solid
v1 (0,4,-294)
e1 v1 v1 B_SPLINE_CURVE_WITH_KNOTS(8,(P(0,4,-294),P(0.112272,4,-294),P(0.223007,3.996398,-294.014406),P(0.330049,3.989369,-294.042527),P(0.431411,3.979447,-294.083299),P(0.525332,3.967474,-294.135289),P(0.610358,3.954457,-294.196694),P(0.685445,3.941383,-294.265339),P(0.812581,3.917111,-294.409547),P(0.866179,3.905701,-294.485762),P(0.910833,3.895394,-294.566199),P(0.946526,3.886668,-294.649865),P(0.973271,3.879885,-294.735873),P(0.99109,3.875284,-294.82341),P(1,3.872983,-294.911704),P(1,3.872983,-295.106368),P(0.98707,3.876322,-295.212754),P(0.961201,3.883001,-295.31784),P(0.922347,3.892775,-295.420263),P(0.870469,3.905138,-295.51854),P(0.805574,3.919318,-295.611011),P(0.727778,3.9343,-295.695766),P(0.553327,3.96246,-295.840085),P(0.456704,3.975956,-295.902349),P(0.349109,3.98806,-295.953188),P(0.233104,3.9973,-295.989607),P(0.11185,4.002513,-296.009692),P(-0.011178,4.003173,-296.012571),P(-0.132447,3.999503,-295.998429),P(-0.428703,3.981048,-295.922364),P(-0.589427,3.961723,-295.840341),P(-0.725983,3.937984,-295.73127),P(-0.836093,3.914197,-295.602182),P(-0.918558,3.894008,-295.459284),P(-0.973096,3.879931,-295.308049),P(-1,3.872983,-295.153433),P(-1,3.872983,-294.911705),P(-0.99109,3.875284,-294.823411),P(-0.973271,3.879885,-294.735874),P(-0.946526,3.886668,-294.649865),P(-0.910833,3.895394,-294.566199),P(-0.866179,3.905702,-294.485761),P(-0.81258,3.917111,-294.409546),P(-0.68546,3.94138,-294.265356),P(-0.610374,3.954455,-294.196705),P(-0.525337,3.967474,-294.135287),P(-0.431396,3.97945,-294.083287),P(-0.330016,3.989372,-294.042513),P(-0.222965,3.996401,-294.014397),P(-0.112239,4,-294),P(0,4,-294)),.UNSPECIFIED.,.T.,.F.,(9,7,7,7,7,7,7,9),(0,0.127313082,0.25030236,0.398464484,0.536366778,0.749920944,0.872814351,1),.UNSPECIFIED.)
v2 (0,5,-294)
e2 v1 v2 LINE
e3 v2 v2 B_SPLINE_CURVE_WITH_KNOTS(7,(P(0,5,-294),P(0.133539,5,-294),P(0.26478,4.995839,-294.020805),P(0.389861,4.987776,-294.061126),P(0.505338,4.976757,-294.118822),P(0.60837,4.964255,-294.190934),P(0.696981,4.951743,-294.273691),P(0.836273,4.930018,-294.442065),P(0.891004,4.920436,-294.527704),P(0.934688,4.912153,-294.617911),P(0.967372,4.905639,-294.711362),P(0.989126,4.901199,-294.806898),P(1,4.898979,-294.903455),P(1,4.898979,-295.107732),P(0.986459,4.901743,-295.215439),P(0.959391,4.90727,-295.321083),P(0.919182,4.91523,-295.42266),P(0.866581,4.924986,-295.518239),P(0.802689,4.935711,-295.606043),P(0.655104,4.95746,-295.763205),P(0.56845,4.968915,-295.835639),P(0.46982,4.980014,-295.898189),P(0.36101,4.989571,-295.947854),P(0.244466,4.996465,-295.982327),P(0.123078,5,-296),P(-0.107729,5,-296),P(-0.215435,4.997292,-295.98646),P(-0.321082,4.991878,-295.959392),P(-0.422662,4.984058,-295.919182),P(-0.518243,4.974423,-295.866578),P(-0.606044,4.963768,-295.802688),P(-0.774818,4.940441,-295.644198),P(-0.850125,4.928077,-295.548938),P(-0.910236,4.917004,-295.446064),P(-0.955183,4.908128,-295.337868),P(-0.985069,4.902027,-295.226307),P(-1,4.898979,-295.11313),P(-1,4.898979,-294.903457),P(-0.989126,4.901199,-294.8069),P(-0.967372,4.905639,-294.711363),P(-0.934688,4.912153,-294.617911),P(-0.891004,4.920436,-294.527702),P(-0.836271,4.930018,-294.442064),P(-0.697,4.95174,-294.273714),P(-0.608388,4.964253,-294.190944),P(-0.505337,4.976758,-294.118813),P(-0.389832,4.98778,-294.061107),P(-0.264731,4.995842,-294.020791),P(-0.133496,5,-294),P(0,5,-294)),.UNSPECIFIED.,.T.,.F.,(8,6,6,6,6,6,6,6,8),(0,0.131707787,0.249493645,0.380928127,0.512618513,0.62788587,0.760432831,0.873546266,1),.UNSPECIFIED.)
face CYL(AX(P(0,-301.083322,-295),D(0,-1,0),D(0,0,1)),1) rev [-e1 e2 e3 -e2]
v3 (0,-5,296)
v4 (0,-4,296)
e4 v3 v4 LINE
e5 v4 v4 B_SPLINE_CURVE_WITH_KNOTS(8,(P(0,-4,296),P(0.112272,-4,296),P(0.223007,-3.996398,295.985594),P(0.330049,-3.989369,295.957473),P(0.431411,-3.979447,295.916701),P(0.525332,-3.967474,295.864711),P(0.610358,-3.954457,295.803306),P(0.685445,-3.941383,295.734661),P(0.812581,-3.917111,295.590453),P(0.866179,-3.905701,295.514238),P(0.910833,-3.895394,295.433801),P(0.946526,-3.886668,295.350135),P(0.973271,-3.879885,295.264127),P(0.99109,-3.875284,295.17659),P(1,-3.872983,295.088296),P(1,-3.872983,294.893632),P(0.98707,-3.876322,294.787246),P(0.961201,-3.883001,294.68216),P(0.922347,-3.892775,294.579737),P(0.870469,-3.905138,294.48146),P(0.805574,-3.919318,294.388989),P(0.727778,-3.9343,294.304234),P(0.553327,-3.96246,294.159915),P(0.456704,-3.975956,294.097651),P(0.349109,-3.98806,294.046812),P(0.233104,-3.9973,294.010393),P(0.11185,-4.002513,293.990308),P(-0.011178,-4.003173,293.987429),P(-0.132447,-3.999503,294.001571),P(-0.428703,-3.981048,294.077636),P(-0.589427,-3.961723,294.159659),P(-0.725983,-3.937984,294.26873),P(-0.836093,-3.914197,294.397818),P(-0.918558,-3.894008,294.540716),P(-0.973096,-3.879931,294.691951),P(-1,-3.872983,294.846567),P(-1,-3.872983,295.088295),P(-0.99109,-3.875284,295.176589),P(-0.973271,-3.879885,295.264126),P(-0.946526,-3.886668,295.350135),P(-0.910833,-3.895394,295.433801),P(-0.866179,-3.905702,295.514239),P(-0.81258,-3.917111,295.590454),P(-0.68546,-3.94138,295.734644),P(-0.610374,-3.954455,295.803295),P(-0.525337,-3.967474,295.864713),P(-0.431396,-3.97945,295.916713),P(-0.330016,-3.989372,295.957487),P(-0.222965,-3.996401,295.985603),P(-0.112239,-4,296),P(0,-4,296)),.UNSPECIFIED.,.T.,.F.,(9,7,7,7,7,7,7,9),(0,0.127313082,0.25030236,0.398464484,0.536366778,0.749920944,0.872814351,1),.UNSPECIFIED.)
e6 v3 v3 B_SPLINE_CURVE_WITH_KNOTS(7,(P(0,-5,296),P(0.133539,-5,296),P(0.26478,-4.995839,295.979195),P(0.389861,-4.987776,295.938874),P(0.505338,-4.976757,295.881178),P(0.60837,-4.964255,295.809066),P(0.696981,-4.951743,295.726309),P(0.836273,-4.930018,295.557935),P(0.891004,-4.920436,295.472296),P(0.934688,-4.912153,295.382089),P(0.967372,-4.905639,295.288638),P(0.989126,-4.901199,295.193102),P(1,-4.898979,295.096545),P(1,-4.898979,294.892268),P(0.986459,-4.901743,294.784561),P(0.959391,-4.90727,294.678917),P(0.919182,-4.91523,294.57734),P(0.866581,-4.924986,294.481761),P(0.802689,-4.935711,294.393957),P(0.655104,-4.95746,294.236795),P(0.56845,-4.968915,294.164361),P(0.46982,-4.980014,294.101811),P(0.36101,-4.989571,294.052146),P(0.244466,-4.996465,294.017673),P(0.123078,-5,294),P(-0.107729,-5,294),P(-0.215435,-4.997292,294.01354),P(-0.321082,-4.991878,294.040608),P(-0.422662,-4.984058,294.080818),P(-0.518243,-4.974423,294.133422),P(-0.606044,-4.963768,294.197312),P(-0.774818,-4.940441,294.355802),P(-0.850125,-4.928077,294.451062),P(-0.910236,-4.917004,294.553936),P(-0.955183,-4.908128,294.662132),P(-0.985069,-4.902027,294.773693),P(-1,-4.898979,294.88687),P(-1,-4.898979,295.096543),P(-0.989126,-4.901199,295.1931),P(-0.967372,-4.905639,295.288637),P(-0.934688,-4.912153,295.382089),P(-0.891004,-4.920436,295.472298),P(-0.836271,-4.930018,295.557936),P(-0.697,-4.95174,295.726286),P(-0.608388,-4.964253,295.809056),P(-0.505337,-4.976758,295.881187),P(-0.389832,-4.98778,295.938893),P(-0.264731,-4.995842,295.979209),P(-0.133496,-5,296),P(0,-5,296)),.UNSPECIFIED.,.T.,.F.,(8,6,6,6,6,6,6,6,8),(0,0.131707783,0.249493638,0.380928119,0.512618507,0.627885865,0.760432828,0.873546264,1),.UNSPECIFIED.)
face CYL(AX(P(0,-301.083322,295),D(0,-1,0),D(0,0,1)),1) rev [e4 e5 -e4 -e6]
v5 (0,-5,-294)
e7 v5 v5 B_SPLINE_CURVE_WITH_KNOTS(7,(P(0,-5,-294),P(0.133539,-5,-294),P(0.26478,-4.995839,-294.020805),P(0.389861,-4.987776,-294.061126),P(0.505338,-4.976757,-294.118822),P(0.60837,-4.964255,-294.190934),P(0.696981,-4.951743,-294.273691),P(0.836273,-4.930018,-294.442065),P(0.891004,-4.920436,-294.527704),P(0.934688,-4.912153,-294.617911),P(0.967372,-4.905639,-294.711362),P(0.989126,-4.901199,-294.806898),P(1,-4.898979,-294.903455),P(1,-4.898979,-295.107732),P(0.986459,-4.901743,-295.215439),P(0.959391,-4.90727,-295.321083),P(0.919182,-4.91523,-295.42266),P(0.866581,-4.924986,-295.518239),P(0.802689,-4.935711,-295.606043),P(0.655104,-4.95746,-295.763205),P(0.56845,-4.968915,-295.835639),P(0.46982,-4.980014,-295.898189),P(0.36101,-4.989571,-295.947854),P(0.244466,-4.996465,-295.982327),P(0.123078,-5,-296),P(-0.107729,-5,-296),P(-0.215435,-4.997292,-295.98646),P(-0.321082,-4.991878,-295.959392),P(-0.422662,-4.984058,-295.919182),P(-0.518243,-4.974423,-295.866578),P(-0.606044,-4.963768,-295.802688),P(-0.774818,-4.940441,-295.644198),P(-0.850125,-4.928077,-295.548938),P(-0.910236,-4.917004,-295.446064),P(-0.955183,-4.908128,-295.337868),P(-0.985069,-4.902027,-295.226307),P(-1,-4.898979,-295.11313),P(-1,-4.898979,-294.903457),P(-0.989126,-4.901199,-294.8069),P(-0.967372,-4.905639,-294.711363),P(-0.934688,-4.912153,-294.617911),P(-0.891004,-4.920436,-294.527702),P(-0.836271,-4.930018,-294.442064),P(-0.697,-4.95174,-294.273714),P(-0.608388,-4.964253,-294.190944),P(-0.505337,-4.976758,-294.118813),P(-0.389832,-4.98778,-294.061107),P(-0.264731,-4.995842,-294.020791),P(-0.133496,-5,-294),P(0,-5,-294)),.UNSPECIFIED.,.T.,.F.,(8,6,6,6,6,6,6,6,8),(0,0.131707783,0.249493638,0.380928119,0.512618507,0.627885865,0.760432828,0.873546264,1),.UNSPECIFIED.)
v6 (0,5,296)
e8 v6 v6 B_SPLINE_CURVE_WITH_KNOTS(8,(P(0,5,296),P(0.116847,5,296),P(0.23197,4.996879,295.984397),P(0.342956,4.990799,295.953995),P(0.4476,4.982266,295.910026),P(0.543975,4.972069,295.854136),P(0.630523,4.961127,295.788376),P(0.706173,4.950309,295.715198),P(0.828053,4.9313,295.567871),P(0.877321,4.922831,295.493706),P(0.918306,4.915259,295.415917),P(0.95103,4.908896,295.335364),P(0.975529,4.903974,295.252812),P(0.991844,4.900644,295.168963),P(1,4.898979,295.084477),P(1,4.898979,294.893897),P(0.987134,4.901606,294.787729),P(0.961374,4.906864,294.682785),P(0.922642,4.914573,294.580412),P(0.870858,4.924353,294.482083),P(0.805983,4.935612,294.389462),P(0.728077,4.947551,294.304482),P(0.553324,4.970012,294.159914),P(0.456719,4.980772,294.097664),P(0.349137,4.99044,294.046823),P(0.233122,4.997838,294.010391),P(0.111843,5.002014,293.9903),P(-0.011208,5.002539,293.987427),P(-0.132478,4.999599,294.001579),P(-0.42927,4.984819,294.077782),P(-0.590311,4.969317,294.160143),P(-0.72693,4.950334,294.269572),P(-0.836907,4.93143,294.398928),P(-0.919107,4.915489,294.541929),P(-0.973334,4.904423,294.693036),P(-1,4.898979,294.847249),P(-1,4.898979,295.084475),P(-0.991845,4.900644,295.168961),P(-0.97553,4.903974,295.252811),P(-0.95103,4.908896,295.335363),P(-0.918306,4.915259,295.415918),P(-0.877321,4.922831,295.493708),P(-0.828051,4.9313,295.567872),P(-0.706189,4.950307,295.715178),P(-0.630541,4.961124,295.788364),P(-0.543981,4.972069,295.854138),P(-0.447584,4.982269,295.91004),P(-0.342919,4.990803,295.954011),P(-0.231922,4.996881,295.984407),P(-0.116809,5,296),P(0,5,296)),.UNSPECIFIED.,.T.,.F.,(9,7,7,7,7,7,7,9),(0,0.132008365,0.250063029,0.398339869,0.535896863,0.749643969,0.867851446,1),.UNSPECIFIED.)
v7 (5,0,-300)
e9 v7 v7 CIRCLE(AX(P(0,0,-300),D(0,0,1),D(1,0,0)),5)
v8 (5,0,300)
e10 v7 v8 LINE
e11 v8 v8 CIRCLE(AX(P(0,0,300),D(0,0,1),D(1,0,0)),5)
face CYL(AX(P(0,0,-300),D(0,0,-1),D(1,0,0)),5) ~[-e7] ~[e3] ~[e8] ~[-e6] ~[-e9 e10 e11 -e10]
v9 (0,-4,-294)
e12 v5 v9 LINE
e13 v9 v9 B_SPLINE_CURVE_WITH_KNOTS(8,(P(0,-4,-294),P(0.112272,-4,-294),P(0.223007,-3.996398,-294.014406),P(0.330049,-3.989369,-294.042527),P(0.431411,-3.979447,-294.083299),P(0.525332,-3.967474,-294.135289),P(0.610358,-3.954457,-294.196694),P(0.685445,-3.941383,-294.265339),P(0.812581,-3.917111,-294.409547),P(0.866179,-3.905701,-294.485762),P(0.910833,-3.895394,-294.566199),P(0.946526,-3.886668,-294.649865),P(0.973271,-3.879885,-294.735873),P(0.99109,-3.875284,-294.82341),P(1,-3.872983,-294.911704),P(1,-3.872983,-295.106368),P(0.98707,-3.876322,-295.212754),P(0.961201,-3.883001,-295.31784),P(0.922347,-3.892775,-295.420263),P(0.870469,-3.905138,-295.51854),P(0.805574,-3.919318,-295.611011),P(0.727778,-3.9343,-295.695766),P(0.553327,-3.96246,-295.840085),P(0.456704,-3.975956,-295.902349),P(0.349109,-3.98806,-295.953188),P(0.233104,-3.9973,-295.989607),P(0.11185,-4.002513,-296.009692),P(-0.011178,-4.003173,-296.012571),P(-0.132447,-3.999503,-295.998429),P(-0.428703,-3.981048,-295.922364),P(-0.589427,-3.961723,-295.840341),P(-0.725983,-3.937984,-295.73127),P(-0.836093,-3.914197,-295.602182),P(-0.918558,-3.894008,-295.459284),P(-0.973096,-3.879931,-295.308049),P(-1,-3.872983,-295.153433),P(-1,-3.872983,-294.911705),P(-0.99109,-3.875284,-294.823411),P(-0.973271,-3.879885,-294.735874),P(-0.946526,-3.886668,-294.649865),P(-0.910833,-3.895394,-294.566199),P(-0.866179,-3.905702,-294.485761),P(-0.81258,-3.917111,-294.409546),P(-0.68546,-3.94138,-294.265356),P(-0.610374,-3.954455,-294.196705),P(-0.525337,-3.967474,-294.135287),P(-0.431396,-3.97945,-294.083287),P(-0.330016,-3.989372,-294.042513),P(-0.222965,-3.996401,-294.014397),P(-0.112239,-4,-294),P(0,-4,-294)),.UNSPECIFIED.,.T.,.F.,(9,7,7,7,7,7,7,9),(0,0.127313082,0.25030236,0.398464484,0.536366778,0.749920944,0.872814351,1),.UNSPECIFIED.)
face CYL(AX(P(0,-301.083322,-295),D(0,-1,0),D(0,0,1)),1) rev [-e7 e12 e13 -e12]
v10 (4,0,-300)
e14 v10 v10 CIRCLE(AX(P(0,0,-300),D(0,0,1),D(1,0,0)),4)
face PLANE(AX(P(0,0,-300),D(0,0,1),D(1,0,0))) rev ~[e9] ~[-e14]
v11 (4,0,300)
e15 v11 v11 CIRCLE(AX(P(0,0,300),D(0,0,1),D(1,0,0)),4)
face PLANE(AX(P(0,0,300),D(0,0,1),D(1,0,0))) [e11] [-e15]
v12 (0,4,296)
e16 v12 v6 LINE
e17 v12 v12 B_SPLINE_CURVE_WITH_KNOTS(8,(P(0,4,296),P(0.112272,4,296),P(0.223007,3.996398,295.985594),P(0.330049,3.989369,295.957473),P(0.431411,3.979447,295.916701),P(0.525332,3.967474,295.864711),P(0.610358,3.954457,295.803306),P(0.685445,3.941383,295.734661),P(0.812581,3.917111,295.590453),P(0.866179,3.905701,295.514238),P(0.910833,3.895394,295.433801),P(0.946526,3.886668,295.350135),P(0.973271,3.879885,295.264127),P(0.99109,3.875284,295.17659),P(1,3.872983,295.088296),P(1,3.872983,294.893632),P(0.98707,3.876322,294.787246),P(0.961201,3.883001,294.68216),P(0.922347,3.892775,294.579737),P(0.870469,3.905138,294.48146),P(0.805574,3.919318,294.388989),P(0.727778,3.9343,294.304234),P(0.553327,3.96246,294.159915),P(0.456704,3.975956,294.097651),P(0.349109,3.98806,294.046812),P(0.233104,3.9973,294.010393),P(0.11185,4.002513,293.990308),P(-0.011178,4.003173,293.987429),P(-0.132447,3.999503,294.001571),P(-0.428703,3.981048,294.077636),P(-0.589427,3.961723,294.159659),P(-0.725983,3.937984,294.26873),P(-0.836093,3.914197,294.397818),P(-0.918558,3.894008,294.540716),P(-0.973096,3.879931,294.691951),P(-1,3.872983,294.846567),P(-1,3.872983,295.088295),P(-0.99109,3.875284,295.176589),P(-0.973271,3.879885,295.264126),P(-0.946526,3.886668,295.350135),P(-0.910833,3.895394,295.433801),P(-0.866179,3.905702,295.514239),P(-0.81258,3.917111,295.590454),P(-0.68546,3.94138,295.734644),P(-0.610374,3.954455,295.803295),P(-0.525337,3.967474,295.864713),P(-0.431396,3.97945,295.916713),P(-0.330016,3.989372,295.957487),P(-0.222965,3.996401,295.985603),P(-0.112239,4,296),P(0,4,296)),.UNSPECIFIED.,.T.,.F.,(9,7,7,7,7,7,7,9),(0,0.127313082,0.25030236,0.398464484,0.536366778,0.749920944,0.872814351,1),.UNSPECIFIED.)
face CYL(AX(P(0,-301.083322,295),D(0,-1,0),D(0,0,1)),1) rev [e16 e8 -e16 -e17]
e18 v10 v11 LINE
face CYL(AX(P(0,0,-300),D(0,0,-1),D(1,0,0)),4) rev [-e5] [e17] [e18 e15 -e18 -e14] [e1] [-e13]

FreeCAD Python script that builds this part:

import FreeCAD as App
import Part
import Sketcher

V = App.Vector
Q = App.Units.Quantity

doc = App.newDocument("Part")
body = doc.addObject("PartDesign::Body", "Body")

sketch1 = doc.addObject("Sketcher::SketchObject", "Sketch")
body.addObject(sketch1)
sketch1.AttachmentSupport = (doc.XY_Plane, [""])
sketch1.MapMode = "FlatFace"
sketch1.addGeometry([
    Part.Circle(V(0, 0, 0), V(0, 0, 1), 5),
    Part.Circle(V(0, 0, 0), V(0, 0, 1), 4),
], False)
sketch1.addConstraint([
    Sketcher.Constraint("Coincident", 0, 3, -1, 1),
    Sketcher.Constraint("Coincident", 1, 3, -1, 1),
    Sketcher.Constraint("Diameter", 0, Q("10 mm")),
    Sketcher.Constraint("Diameter", 1, Q("8 mm")),
])
pad1 = doc.addObject("PartDesign::Pad", "Pad")
body.addObject(pad1)
pad1.Profile = sketch1
pad1.Type = "TwoLengths"
pad1.Length = 300
pad1.Length2 = 300

sketch2 = doc.addObject("Sketcher::SketchObject", "Sketch001")
body.addObject(sketch2)
sketch2.AttachmentSupport = (doc.XZ_Plane, [""])
sketch2.MapMode = "FlatFace"
sketch2.addGeometry([
    Part.Circle(V(0, -295, 0), V(0, 0, 1), 1),
    Part.Circle(V(0, 295, 0), V(0, 0, 1), 1),
], False)
sketch2.addConstraint([
    Sketcher.Constraint("Equal", 0, 1),
    Sketcher.Constraint("Symmetric", 0, 3, 1, 3, -1, 1),
    Sketcher.Constraint("PointOnObject", 0, 3, -2),
    Sketcher.Constraint("Diameter", 0, Q("2 mm")),
    Sketcher.Constraint("DistanceY", 0, 3, -1, 1, Q("295 mm")),
])
pocket1 = doc.addObject("PartDesign::Pocket", "Pocket")
body.addObject(pocket1)
pocket1.Profile = sketch2
pocket1.Type = "ThroughAll"
pocket1.Midplane = True

doc.recompute()
